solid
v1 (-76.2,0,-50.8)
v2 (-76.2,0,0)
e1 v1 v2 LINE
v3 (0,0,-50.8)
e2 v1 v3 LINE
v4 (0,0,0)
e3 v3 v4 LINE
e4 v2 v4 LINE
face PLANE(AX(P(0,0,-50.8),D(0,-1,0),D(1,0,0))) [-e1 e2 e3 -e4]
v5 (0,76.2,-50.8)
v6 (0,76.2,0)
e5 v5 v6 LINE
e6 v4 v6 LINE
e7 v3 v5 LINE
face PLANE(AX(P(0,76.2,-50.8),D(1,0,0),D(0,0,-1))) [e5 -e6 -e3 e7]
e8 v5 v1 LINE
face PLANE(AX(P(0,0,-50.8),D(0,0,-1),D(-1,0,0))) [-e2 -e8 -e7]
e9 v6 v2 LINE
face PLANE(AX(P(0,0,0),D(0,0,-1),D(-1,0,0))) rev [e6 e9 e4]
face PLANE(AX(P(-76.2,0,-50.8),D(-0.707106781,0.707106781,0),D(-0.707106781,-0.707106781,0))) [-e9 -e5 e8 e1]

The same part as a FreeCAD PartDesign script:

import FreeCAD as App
import Part
import Sketcher
from FreeCAD import Vector
Q = App.Units.Quantity

doc = App.newDocument("Part")
body = doc.addObject("PartDesign::Body", "Body")

# Sketch on XY plane
sketch1 = body.newObject("Sketcher::SketchObject", "Sketch")
sketch1.AttachmentSupport = (doc.getObject("XY_Plane"), [""])
sketch1.MapMode = "FlatFace"
sketch1.addGeometry(Part.LineSegment(Vector(-76, 0, 0), Vector(0, 0, 0)), False)
sketch1.addGeometry(Part.LineSegment(Vector(0, 0, 0), Vector(0, 76, 0)), False)
sketch1.addGeometry(Part.LineSegment(Vector(0, 76, 0), Vector(-76, 0, 0)), False)
sketch1.addConstraint(Sketcher.Constraint("Coincident", 0, 2, 1, 1))
sketch1.addConstraint(Sketcher.Constraint("Coincident", 1, 2, 2, 1))
sketch1.addConstraint(Sketcher.Constraint("Coincident", 2, 2, 0, 1))
sketch1.addConstraint(Sketcher.Constraint("Horizontal", 0))
sketch1.addConstraint(Sketcher.Constraint("Vertical", 1))
sketch1.addConstraint(Sketcher.Constraint("Coincident", 0, 2, -1, 1))
sketch1.addConstraint(Sketcher.Constraint("Equal", 0, 1))
sketch1.addConstraint(Sketcher.Constraint("DistanceX", 0, 1, 0, 2, Q("3 in")))
pad1 = body.newObject("PartDesign::Pad", "Pad")
pad1.Profile = sketch1
pad1.Length = Q("2 in")
pad1.Reversed = True

doc.recompute()
